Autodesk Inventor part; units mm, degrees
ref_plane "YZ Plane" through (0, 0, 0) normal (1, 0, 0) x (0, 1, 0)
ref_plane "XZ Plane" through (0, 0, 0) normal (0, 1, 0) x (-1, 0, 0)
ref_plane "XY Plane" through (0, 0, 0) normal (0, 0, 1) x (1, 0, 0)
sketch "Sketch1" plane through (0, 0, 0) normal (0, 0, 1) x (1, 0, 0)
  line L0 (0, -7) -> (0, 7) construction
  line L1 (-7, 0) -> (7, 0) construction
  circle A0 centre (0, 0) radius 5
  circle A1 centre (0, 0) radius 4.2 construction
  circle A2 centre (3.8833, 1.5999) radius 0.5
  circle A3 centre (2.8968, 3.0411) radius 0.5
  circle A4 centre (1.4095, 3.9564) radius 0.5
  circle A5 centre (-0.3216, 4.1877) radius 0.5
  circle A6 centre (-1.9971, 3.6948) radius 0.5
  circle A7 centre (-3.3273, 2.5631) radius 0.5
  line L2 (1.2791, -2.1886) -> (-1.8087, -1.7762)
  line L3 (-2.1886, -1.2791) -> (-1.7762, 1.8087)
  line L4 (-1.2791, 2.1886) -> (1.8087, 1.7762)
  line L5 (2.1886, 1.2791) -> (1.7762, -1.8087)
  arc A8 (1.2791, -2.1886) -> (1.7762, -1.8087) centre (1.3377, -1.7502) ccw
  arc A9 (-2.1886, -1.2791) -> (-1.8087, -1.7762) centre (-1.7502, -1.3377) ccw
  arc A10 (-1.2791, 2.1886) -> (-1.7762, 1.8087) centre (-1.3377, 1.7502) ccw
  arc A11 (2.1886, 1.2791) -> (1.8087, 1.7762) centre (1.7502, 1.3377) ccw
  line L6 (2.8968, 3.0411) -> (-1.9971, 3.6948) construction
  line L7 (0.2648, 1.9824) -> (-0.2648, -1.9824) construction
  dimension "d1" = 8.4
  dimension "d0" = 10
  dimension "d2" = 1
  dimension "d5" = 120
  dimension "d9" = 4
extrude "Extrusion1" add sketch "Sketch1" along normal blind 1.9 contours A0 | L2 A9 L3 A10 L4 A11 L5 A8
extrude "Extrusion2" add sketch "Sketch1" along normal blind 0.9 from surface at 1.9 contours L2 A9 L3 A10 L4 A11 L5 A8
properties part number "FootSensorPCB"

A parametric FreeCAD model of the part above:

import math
import FreeCAD as App
import Part
import Sketcher
Q = App.Units.Quantity

doc = App.newDocument("Part")
body = doc.addObject("PartDesign::Body", "Body")

sketch1 = body.newObject("Sketcher::SketchObject", "Sketch")
sketch1.AttachmentSupport = (doc.getObject("XY_Plane"), [""])
sketch1.MapMode = "FlatFace"
sketch1.addGeometry([
    Part.Circle(App.Vector(0, 0, 0), App.Vector(0, 0, 1), 5),
    Part.Circle(App.Vector(-3.3273, 2.5631, 0), App.Vector(0, 0, 1), 0.5),
    Part.Circle(App.Vector(-1.9971, 3.6948, 0), App.Vector(0, 0, 1), 0.5),
    Part.Circle(App.Vector(-0.3216, 4.1877, 0), App.Vector(0, 0, 1), 0.5),
    Part.Circle(App.Vector(3.8833, 1.5999, 0), App.Vector(0, 0, 1), 0.5),
    Part.Circle(App.Vector(1.4095, 3.9564, 0), App.Vector(0, 0, 1), 0.5),
    Part.Circle(App.Vector(2.8968, 3.0411, 0), App.Vector(0, 0, 1), 0.5),
], False)
sketch1.addConstraint([
    Sketcher.Constraint("Coincident", 0, 3, -1, 1),
    Sketcher.Constraint("Equal", 1, 2),
    Sketcher.Constraint("Equal", 2, 3),
    Sketcher.Constraint("Equal", 3, 4),
    Sketcher.Constraint("Equal", 4, 5),
    Sketcher.Constraint("Equal", 5, 6),
    Sketcher.Constraint("Diameter", 0, Q("10 mm")),
    Sketcher.Constraint("Diameter", 1, Q("1 mm")),
    Sketcher.Constraint("DistanceY", -1, 1, 4, 3, Q("1.6 mm")),
    Sketcher.Constraint("DistanceY", -1, 1, 1, 3, Q("2.563 mm")),
    Sketcher.Constraint("DistanceX", 2, 3, -1, 1, Q("1.997 mm")),
    Sketcher.Constraint("DistanceY", -1, 1, 6, 3, Q("3.041 mm")),
    Sketcher.Constraint("DistanceY", 2, 3, 3, 3, Q("0.493 mm")),
    Sketcher.Constraint("DistanceX", 3, 3, 4, 3, Q("4.205 mm")),
    Sketcher.Constraint("DistanceY", 4, 3, 2, 3, Q("2.095 mm")),
    Sketcher.Constraint("DistanceX", 3, 3, 5, 3, Q("1.731 mm")),
    Sketcher.Constraint("DistanceX", 2, 3, 6, 3, Q("4.894 mm")),
    Sketcher.Constraint("DistanceX", 1, 3, -1, 1, Q("3.3273 mm")),
    Sketcher.Constraint("DistanceX", 3, 3, -1, 1, Q("0.3216 mm")),
    Sketcher.Constraint("DistanceY", -1, 1, 5, 3, Q("3.9564 mm")),
])
pad1 = body.newObject("PartDesign::Pad", "Pad")
pad1.Profile = sketch1
pad1.Length = 1.9

sketch2 = body.newObject("Sketcher::SketchObject", "Sketch001")
sketch2.AttachmentSupport = (doc.getObject("XY_Plane"), [""])
sketch2.MapMode = "FlatFace"
sketch2.AttachmentOffset = App.Placement(App.Vector(0, 0, 1.9), App.Rotation())
sketch2.addGeometry([
    Part.LineSegment(App.Vector(-1.8087, -1.7762, 0), App.Vector(1.2791, -2.1886, 0)),
    Part.ArcOfCircle(Part.Circle(App.Vector(1.3377, -1.7502, 0), App.Vector(0, 0, 1), 0.442299), math.radians(-97.613476), math.radians(-7.598923)),
    Part.LineSegment(App.Vector(1.7762, -1.8087, 0), App.Vector(2.1886, 1.2791, 0)),
    Part.ArcOfCircle(Part.Circle(App.Vector(1.7502, 1.3377, 0), App.Vector(0, 0, 1), 0.442299), math.radians(-7.613476), math.radians(82.401077)),
    Part.LineSegment(App.Vector(1.8087, 1.7762, 0), App.Vector(-1.2791, 2.1886, 0)),
    Part.ArcOfCircle(Part.Circle(App.Vector(-1.3377, 1.7502, 0), App.Vector(0, 0, 1), 0.442299), math.radians(82.386524), math.radians(172.401077)),
    Part.LineSegment(App.Vector(-1.7762, 1.8087, 0), App.Vector(-2.1886, -1.2791, 0)),
    Part.ArcOfCircle(Part.Circle(App.Vector(-1.7502, -1.3377, 0), App.Vector(0, 0, 1), 0.442299), math.radians(172.386524), math.radians(262.401077)),
], False)
sketch2.addConstraint([
    Sketcher.Constraint("Tangent", 0, 2, 1, 1),
    Sketcher.Constraint("Tangent", 1, 2, 2, 1),
    Sketcher.Constraint("Tangent", 2, 2, 3, 1),
    Sketcher.Constraint("Tangent", 3, 2, 4, 1),
    Sketcher.Constraint("Tangent", 4, 2, 5, 1),
    Sketcher.Constraint("Tangent", 5, 2, 6, 1),
    Sketcher.Constraint("Tangent", 6, 2, 7, 1),
    Sketcher.Constraint("Tangent", 7, 2, 0, 1),
    Sketcher.Constraint("Equal", 1, 3),
    Sketcher.Constraint("Equal", 3, 5),
    Sketcher.Constraint("Equal", 5, 7),
    Sketcher.Constraint("Symmetric", 1, 3, 5, 3, -1, 1),
    Sketcher.Constraint("Symmetric", 3, 3, 7, 3, -1, 1),
    Sketcher.Constraint("Perpendicular", 0, 2),
    Sketcher.Constraint("Equal", 0, 2),
    Sketcher.Constraint("Radius", 1, Q("0.4423 mm")),
    Sketcher.Constraint("DistanceY", 0, 2, 1, 2, Q("0.38 mm")),
    Sketcher.Constraint("DistanceX", -1, 1, 0, 2, Q("1.279 mm")),
])
pad2 = body.newObject("PartDesign::Pad", "Pad001")
pad2.Profile = sketch2
pad2.Length = 0.9

doc.recompute()
